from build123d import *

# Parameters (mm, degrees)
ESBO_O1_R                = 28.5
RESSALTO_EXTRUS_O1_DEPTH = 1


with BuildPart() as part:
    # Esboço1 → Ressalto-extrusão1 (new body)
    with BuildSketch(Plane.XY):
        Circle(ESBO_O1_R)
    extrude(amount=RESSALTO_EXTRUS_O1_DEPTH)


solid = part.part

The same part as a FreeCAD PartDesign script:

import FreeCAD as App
import Part
import Sketcher
from FreeCAD import Vector

doc = App.newDocument("Part")
body = doc.addObject("PartDesign::Body", "Body")

sketch1 = body.newObject("Sketcher::SketchObject", "Sketch")
sketch1.AttachmentSupport = (doc.getObject("XY_Plane"), [""])
sketch1.MapMode = "FlatFace"
sketch1.addGeometry(Part.Circle(Vector(0, 0, 0), Vector(0, 0, 1), 28), False)
sketch1.addConstraint([
    Sketcher.Constraint("Coincident", 0, 3, -1, 1),
    Sketcher.Constraint("Diameter", 0, 57.0),
])
pad1 = body.newObject("PartDesign::Pad", "Pad")
pad1.Profile = sketch1
pad1.Length = 1

doc.recompute()
